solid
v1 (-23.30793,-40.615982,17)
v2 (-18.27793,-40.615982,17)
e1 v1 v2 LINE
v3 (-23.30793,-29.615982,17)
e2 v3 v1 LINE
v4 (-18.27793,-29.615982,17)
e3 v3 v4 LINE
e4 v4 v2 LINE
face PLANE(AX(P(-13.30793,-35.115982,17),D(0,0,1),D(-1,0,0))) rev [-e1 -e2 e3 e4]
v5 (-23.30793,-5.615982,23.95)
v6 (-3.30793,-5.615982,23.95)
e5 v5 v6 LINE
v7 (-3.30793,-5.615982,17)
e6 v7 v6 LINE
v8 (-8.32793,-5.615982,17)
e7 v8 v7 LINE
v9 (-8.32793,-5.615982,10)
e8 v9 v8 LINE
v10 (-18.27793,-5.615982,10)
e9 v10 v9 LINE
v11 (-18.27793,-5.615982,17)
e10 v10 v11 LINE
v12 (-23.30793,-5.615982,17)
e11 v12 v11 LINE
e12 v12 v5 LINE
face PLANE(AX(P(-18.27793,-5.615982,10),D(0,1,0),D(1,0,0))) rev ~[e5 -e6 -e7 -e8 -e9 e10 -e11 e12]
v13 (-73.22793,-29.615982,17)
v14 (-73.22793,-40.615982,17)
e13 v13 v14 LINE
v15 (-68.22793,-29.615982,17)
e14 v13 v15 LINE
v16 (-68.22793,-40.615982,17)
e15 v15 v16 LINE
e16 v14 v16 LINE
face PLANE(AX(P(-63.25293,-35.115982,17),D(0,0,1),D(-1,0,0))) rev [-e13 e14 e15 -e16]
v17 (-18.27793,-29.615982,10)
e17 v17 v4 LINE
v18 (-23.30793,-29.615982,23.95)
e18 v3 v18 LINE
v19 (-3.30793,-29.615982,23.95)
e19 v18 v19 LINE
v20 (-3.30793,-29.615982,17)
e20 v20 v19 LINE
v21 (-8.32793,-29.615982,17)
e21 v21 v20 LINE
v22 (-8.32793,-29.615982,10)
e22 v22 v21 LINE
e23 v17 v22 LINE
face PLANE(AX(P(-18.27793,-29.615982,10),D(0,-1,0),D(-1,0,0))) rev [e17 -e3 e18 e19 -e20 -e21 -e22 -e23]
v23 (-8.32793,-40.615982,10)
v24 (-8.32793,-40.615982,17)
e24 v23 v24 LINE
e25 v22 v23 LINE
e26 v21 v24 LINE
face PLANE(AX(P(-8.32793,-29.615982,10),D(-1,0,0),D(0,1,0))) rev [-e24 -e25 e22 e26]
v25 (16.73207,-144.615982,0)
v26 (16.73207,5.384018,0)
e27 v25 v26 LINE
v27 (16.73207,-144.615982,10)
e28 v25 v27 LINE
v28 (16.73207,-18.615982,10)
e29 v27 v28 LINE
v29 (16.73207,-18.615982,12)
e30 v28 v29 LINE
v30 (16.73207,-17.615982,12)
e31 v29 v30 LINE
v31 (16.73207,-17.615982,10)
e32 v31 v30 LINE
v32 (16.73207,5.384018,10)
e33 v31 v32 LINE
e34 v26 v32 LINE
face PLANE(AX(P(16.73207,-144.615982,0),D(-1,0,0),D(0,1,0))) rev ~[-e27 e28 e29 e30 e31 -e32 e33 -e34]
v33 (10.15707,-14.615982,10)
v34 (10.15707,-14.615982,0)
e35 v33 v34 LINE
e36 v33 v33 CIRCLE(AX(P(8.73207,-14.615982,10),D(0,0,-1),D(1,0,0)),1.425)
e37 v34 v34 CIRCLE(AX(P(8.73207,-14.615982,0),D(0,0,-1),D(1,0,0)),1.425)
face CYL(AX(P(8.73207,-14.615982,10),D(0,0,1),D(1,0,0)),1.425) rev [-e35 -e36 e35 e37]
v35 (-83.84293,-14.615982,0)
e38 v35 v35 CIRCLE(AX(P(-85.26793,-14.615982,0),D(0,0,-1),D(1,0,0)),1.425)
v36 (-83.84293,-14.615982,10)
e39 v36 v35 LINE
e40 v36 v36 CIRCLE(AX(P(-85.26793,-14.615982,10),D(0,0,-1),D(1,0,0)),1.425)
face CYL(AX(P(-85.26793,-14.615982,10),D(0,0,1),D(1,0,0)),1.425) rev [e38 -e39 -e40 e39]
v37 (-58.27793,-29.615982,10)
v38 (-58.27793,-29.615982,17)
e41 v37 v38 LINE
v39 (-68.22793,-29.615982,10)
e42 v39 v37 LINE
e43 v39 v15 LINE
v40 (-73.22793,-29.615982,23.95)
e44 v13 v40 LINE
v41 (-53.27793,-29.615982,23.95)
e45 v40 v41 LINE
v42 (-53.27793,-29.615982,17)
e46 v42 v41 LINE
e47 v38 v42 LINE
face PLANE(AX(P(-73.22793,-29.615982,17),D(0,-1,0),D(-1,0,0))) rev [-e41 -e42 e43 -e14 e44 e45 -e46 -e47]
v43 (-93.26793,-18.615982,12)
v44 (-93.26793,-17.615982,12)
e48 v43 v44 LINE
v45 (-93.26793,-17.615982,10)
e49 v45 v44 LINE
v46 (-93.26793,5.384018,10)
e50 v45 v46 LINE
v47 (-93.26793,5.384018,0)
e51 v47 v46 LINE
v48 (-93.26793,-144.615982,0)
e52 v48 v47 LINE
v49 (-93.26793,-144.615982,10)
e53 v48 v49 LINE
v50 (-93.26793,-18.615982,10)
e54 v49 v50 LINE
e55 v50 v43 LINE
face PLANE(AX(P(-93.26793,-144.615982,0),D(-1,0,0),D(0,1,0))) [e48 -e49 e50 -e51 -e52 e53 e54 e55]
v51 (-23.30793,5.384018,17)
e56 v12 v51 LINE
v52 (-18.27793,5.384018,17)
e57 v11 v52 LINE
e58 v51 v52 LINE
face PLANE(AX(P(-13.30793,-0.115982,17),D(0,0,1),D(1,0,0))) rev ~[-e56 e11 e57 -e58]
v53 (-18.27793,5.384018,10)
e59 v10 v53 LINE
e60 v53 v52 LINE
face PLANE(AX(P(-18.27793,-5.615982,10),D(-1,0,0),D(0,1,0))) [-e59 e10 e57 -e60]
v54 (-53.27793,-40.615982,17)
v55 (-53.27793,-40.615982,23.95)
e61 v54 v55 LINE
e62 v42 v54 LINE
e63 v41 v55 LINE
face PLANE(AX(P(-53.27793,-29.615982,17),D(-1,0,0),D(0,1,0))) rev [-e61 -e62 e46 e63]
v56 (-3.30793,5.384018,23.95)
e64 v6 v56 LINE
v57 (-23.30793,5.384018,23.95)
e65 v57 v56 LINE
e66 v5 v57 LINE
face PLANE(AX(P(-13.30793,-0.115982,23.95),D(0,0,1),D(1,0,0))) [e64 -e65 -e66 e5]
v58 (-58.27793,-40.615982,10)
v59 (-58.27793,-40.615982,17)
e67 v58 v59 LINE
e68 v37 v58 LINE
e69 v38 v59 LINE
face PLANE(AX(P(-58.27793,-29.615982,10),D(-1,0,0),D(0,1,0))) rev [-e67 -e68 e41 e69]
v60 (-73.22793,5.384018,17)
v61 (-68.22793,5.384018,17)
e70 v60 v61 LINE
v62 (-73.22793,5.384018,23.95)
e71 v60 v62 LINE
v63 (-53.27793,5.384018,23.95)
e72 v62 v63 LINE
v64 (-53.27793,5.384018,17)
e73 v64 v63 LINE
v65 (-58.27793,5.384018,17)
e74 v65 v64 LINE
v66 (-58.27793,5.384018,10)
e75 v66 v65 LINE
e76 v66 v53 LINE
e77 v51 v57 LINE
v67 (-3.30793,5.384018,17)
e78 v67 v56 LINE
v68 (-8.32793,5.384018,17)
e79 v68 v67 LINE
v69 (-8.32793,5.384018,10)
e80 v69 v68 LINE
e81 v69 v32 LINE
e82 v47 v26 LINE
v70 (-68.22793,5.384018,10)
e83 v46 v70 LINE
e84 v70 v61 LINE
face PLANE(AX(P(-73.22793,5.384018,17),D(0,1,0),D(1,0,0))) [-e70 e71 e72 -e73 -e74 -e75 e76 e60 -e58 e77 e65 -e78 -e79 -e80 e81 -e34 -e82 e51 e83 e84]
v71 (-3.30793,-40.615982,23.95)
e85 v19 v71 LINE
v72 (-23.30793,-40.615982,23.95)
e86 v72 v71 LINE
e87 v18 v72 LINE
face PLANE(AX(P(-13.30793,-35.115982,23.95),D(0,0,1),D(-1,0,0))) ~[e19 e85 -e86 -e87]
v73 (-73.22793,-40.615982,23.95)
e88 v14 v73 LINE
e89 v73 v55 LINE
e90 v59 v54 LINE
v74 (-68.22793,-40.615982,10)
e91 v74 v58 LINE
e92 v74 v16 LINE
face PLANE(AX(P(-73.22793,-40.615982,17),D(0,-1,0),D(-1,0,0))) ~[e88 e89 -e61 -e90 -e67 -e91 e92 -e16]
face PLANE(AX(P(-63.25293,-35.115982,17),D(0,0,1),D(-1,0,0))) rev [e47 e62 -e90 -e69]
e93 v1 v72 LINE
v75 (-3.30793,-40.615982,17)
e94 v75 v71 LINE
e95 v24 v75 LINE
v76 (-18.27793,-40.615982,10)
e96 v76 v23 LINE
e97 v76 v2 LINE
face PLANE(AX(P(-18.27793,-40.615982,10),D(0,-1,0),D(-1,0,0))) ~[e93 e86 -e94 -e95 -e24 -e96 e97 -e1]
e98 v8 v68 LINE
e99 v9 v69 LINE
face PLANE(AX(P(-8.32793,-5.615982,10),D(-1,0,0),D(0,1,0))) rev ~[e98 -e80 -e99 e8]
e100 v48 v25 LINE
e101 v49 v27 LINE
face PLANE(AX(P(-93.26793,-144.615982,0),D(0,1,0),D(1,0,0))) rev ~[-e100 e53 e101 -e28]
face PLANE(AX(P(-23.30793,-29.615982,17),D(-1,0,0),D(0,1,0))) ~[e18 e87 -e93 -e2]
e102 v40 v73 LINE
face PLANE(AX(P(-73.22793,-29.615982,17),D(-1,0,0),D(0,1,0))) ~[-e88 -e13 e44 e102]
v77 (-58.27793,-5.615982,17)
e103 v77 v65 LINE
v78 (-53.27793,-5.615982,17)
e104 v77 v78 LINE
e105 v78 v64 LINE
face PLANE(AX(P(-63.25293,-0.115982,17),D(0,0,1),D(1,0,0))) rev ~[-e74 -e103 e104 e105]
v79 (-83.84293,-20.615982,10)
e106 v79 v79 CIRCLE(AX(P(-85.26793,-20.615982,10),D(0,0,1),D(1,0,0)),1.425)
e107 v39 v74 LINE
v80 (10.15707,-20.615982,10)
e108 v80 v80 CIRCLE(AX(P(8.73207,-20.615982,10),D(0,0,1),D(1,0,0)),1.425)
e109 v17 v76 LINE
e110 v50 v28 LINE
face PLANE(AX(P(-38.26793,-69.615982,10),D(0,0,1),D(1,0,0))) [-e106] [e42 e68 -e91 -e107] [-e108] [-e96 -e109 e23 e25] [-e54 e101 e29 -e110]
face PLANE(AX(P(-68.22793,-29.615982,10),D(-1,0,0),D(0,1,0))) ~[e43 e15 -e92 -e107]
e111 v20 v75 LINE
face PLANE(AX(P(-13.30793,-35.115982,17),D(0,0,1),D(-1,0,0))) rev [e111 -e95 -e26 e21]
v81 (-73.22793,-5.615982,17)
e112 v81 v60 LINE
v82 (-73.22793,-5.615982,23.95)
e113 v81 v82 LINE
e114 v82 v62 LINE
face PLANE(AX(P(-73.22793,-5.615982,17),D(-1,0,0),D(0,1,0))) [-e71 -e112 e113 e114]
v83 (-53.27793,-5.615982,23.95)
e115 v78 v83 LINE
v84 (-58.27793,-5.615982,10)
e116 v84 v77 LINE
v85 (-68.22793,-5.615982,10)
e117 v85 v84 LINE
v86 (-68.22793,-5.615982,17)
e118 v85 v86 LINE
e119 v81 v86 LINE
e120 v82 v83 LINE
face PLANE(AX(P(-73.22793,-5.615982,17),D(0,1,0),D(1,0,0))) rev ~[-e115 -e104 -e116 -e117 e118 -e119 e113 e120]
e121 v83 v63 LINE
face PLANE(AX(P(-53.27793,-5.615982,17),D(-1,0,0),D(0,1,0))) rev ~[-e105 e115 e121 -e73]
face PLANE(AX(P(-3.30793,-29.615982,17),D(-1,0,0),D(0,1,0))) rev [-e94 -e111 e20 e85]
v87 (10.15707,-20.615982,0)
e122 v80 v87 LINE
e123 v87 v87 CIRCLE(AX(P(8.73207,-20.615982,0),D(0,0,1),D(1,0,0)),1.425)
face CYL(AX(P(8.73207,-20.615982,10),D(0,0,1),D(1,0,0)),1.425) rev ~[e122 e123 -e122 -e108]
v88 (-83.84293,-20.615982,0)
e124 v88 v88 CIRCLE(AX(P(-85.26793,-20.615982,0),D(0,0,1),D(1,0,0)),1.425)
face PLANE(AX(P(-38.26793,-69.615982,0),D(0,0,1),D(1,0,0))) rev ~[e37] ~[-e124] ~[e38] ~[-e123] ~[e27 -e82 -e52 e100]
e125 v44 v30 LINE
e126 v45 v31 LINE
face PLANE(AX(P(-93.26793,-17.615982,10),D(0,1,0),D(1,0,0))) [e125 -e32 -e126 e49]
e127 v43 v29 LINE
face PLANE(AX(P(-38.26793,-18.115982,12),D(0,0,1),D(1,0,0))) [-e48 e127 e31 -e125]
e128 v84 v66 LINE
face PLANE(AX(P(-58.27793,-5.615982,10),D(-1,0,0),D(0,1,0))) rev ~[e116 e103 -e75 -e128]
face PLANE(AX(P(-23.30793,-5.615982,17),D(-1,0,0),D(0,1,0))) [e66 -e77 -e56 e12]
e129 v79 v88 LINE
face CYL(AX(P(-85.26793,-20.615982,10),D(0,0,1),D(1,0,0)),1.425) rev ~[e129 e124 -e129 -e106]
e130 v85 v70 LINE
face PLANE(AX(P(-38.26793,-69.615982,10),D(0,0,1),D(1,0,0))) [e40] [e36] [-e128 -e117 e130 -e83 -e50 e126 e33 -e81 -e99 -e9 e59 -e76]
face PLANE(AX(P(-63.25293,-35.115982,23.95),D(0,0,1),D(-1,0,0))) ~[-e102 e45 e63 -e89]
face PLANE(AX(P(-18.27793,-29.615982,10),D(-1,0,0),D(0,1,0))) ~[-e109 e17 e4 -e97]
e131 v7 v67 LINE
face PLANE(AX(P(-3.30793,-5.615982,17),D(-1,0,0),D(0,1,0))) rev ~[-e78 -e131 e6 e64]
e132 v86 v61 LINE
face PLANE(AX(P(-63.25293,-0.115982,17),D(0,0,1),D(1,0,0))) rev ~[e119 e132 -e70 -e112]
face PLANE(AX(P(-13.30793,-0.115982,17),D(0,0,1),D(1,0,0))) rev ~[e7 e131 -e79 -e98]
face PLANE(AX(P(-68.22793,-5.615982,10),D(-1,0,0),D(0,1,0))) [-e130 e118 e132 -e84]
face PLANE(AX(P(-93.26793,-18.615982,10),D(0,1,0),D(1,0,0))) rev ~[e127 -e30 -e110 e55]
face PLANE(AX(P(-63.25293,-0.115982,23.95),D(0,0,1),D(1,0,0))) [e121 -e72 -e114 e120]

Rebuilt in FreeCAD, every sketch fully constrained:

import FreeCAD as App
import Part
import Sketcher
Q = App.Units.Quantity

doc = App.newDocument("Part")
body = doc.addObject("PartDesign::Body", "Body")

sketch1 = doc.addObject("Sketcher::SketchObject", "Sketch")
body.addObject(sketch1)
sketch1.AttachmentSupport = (doc.XY_Plane, [""])
sketch1.MapMode = "FlatFace"
sketch1.addGeometry(Part.LineSegment(App.Vector(-93, 5, 0), App.Vector(-93, -145, 0)), False)
sketch1.addGeometry(Part.LineSegment(App.Vector(-93, -145, 0), App.Vector(17, -145, 0)), False)
sketch1.addGeometry(Part.LineSegment(App.Vector(17, -145, 0), App.Vector(17, 5, 0)), False)
sketch1.addGeometry(Part.LineSegment(App.Vector(17, 5, 0), App.Vector(-93, 5, 0)), False)
sketch1.addConstraint(Sketcher.Constraint("Coincident", 0, 2, 1, 1))
sketch1.addConstraint(Sketcher.Constraint("Coincident", 1, 2, 2, 1))
sketch1.addConstraint(Sketcher.Constraint("Coincident", 2, 2, 3, 1))
sketch1.addConstraint(Sketcher.Constraint("Coincident", 3, 2, 0, 1))
sketch1.addConstraint(Sketcher.Constraint("Vertical", 0))
sketch1.addConstraint(Sketcher.Constraint("Horizontal", 1))
sketch1.addConstraint(Sketcher.Constraint("Vertical", 2))
sketch1.addConstraint(Sketcher.Constraint("Horizontal", 3))
sketch1.addConstraint(Sketcher.Constraint("DistanceX", 1, 1, 1, 2, Q("110 mm")))
sketch1.addConstraint(Sketcher.Constraint("DistanceY", 0, 2, 0, 1, Q("150 mm")))
sketch1.addConstraint(Sketcher.Constraint("DistanceX", 0, 2, -1, 1, Q("93.26793 mm")))
sketch1.addConstraint(Sketcher.Constraint("DistanceY", 0, 2, -1, 1, Q("144.615982 mm")))
pad1 = doc.addObject("PartDesign::Pad", "Pad")
body.addObject(pad1)
pad1.Profile = sketch1
pad1.Length = 10

sketch2 = doc.addObject("Sketcher::SketchObject", "Sketch001")
body.addObject(sketch2)
sketch2.AttachmentSupport = (doc.XY_Plane, [""])
sketch2.MapMode = "FlatFace"
sketch2.AttachmentOffset = App.Placement(App.Vector(0, 0, 10), App.Rotation())
sketch2.addGeometry(Part.LineSegment(App.Vector(-68, 5, 0), App.Vector(-68, -6, 0)), False)
sketch2.addGeometry(Part.LineSegment(App.Vector(-68, -6, 0), App.Vector(-58, -6, 0)), False)
sketch2.addGeometry(Part.LineSegment(App.Vector(-58, -6, 0), App.Vector(-58, 5, 0)), False)
sketch2.addGeometry(Part.LineSegment(App.Vector(-58, 5, 0), App.Vector(-68, 5, 0)), False)
sketch2.addGeometry(Part.LineSegment(App.Vector(-18, 5, 0), App.Vector(-18, -6, 0)), False)
sketch2.addGeometry(Part.LineSegment(App.Vector(-18, -6, 0), App.Vector(-8, -6, 0)), False)
sketch2.addGeometry(Part.LineSegment(App.Vector(-8, -6, 0), App.Vector(-8, 5, 0)), False)
sketch2.addGeometry(Part.LineSegment(App.Vector(-8, 5, 0), App.Vector(-18, 5, 0)), False)
sketch2.addConstraint(Sketcher.Constraint("Coincident", 0, 2, 1, 1))
sketch2.addConstraint(Sketcher.Constraint("Coincident", 1, 2, 2, 1))
sketch2.addConstraint(Sketcher.Constraint("Coincident", 2, 2, 3, 1))
sketch2.addConstraint(Sketcher.Constraint("Coincident", 3, 2, 0, 1))
sketch2.addConstraint(Sketcher.Constraint("Coincident", 4, 2, 5, 1))
sketch2.addConstraint(Sketcher.Constraint("Coincident", 5, 2, 6, 1))
sketch2.addConstraint(Sketcher.Constraint("Coincident", 6, 2, 7, 1))
sketch2.addConstraint(Sketcher.Constraint("Coincident", 7, 2, 4, 1))
sketch2.addConstraint(Sketcher.Constraint("Vertical", 0))
sketch2.addConstraint(Sketcher.Constraint("Horizontal", 1))
sketch2.addConstraint(Sketcher.Constraint("Vertical", 2))
sketch2.addConstraint(Sketcher.Constraint("Horizontal", 3))
sketch2.addConstraint(Sketcher.Constraint("Vertical", 4))
sketch2.addConstraint(Sketcher.Constraint("Horizontal", 5))
sketch2.addConstraint(Sketcher.Constraint("Vertical", 6))
sketch2.addConstraint(Sketcher.Constraint("Horizontal", 7))
sketch2.addConstraint(Sketcher.Constraint("Horizontal", 1, 2, 4, 2))
sketch2.addConstraint(Sketcher.Constraint("Horizontal", 3, 2, 6, 2))
sketch2.addConstraint(Sketcher.Constraint("Equal", 3, 5))
sketch2.addConstraint(Sketcher.Constraint("DistanceY", 0, 2, 0, 1, Q("11 mm")))
sketch2.addConstraint(Sketcher.Constraint("DistanceX", 1, 2, 4, 2, Q("40 mm")))
sketch2.addConstraint(Sketcher.Constraint("DistanceX", 1, 1, 1, 2, Q("9.95 mm")))
sketch2.addConstraint(Sketcher.Constraint("DistanceX", 0, 2, -1, 1, Q("68.22793 mm")))
sketch2.addConstraint(Sketcher.Constraint("DistanceY", 0, 2, -1, 1, Q("5.615982 mm")))
pad2 = doc.addObject("PartDesign::Pad", "Pad001")
body.addObject(pad2)
pad2.Profile = sketch2
pad2.Length = 7

sketch3 = doc.addObject("Sketcher::SketchObject", "Sketch002")
body.addObject(sketch3)
sketch3.AttachmentSupport = (doc.XY_Plane, [""])
sketch3.MapMode = "FlatFace"
sketch3.AttachmentOffset = App.Placement(App.Vector(0, 0, 17), App.Rotation())
sketch3.addGeometry(Part.LineSegment(App.Vector(-73, 5, 0), App.Vector(-73, -6, 0)), False)
sketch3.addGeometry(Part.LineSegment(App.Vector(-73, -6, 0), App.Vector(-53, -6, 0)), False)
sketch3.addGeometry(Part.LineSegment(App.Vector(-53, -6, 0), App.Vector(-53, 5, 0)), False)
sketch3.addGeometry(Part.LineSegment(App.Vector(-53, 5, 0), App.Vector(-73, 5, 0)), False)
sketch3.addGeometry(Part.LineSegment(App.Vector(-23, 5, 0), App.Vector(-23, -6, 0)), False)
sketch3.addGeometry(Part.LineSegment(App.Vector(-23, -6, 0), App.Vector(-3, -6, 0)), False)
sketch3.addGeometry(Part.LineSegment(App.Vector(-3, -6, 0), App.Vector(-3, 5, 0)), False)
sketch3.addGeometry(Part.LineSegment(App.Vector(-3, 5, 0), App.Vector(-23, 5, 0)), False)
sketch3.addConstraint(Sketcher.Constraint("Coincident", 0, 2, 1, 1))
sketch3.addConstraint(Sketcher.Constraint("Coincident", 1, 2, 2, 1))
sketch3.addConstraint(Sketcher.Constraint("Coincident", 2, 2, 3, 1))
sketch3.addConstraint(Sketcher.Constraint("Coincident", 3, 2, 0, 1))
sketch3.addConstraint(Sketcher.Constraint("Coincident", 4, 2, 5, 1))
sketch3.addConstraint(Sketcher.Constraint("Coincident", 5, 2, 6, 1))
sketch3.addConstraint(Sketcher.Constraint("Coincident", 6, 2, 7, 1))
sketch3.addConstraint(Sketcher.Constraint("Coincident", 7, 2, 4, 1))
sketch3.addConstraint(Sketcher.Constraint("Vertical", 0))
sketch3.addConstraint(Sketcher.Constraint("Horizontal", 1))
sketch3.addConstraint(Sketcher.Constraint("Vertical", 2))
sketch3.addConstraint(Sketcher.Constraint("Horizontal", 3))
sketch3.addConstraint(Sketcher.Constraint("Vertical", 4))
sketch3.addConstraint(Sketcher.Constraint("Horizontal", 5))
sketch3.addConstraint(Sketcher.Constraint("Vertical", 6))
sketch3.addConstraint(Sketcher.Constraint("Horizontal", 7))
sketch3.addConstraint(Sketcher.Constraint("Horizontal", 1, 2, 4, 2))
sketch3.addConstraint(Sketcher.Constraint("Horizontal", 3, 2, 6, 2))
sketch3.addConstraint(Sketcher.Constraint("DistanceX", 5, 1, 5, 2, Q("20 mm")))
sketch3.addConstraint(Sketcher.Constraint("DistanceY", 0, 2, 0, 1, Q("11 mm")))
sketch3.addConstraint(Sketcher.Constraint("DistanceX", 1, 1, 1, 2, Q("19.95 mm")))
sketch3.addConstraint(Sketcher.Constraint("DistanceX", 1, 2, 4, 2, Q("29.97 mm")))
sketch3.addConstraint(Sketcher.Constraint("DistanceX", 0, 2, -1, 1, Q("73.22793 mm")))
sketch3.addConstraint(Sketcher.Constraint("DistanceY", 0, 2, -1, 1, Q("5.615982 mm")))
pad3 = doc.addObject("PartDesign::Pad", "Pad002")
body.addObject(pad3)
pad3.Profile = sketch3
pad3.Length = 6.95

sketch4 = doc.addObject("Sketcher::SketchObject", "Sketch003")
body.addObject(sketch4)
sketch4.AttachmentSupport = (doc.XY_Plane, [""])
sketch4.MapMode = "FlatFace"
sketch4.AttachmentOffset = App.Placement(App.Vector(0, 0, 10), App.Rotation())
sketch4.addGeometry(Part.Circle(App.Vector(-85.3, -20.6, 0), App.Vector(0, 0, 1), 1.4), False)
sketch4.addGeometry(Part.Circle(App.Vector(8.7, -20.6, 0), App.Vector(0, 0, 1), 1.4), False)
sketch4.addConstraint(Sketcher.Constraint("Equal", 0, 1))
sketch4.addConstraint(Sketcher.Constraint("Horizontal", 0, 3, 1, 3))
sketch4.addConstraint(Sketcher.Constraint("Diameter", 0, Q("2.85 mm")))
sketch4.addConstraint(Sketcher.Constraint("DistanceX", 0, 3, 1, 3, Q("94 mm")))
sketch4.addConstraint(Sketcher.Constraint("DistanceX", 0, 3, -1, 1, Q("85.26793 mm")))
sketch4.addConstraint(Sketcher.Constraint("DistanceY", 0, 3, -1, 1, Q("20.615982 mm")))
pocket1 = doc.addObject("PartDesign::Pocket", "Pocket")
body.addObject(pocket1)
pocket1.Profile = sketch4
pocket1.Length = 10

sketch5 = doc.addObject("Sketcher::SketchObject", "Sketch004")
body.addObject(sketch5)
sketch5.AttachmentSupport = (doc.XY_Plane, [""])
sketch5.MapMode = "FlatFace"
sketch5.AttachmentOffset = App.Placement(App.Vector(0, 0, 10), App.Rotation())
sketch5.addGeometry(Part.LineSegment(App.Vector(-93.3, -17.6, 0), App.Vector(-93.3, -18.6, 0)), False)
sketch5.addGeometry(Part.LineSegment(App.Vector(-93.3, -18.6, 0), App.Vector(16.7, -18.6, 0)), False)
sketch5.addGeometry(Part.LineSegment(App.Vector(16.7, -18.6, 0), App.Vector(16.7, -17.6, 0)), False)
sketch5.addGeometry(Part.LineSegment(App.Vector(16.7, -17.6, 0), App.Vector(-93.3, -17.6, 0)), False)
sketch5.addConstraint(Sketcher.Constraint("Coincident", 0, 2, 1, 1))
sketch5.addConstraint(Sketcher.Constraint("Coincident", 1, 2, 2, 1))
sketch5.addConstraint(Sketcher.Constraint("Coincident", 2, 2, 3, 1))
sketch5.addConstraint(Sketcher.Constraint("Coincident", 3, 2, 0, 1))
sketch5.addConstraint(Sketcher.Constraint("Vertical", 0))
sketch5.addConstraint(Sketcher.Constraint("Horizontal", 1))
sketch5.addConstraint(Sketcher.Constraint("Vertical", 2))
sketch5.addConstraint(Sketcher.Constraint("Horizontal", 3))
sketch5.addConstraint(Sketcher.Constraint("DistanceX", 1, 1, 1, 2, Q("110 mm")))
sketch5.addConstraint(Sketcher.Constraint("DistanceY", 0, 2, 0, 1, Q("1 mm")))
sketch5.addConstraint(Sketcher.Constraint("DistanceX", 0, 2, -1, 1, Q("93.26793 mm")))
sketch5.addConstraint(Sketcher.Constraint("DistanceY", 0, 2, -1, 1, Q("18.615982 mm")))
pad4 = doc.addObject("PartDesign::Pad", "Pad003")
body.addObject(pad4)
pad4.Profile = sketch5
pad4.Length = 2
doc.recompute()

datumplane = doc.addObject("PartDesign::Plane", "DatumPlane")
body.addObject(datumplane)
datumplane.AttachmentSupport = (doc.XZ_Plane, [""])
datumplane.MapMode = "FlatFace"
datumplane.AttachmentOffset = App.Placement(App.Vector(0, 0, 17.615982), App.Rotation())
mirrored = doc.addObject("PartDesign::Mirrored", "Mirrored")
body.addObject(mirrored)
mirrored.Originals = [pad2, pad3, pocket1]
mirrored.MirrorPlane = (datumplane, [""])
body.Tip = mirrored

doc.recompute()
